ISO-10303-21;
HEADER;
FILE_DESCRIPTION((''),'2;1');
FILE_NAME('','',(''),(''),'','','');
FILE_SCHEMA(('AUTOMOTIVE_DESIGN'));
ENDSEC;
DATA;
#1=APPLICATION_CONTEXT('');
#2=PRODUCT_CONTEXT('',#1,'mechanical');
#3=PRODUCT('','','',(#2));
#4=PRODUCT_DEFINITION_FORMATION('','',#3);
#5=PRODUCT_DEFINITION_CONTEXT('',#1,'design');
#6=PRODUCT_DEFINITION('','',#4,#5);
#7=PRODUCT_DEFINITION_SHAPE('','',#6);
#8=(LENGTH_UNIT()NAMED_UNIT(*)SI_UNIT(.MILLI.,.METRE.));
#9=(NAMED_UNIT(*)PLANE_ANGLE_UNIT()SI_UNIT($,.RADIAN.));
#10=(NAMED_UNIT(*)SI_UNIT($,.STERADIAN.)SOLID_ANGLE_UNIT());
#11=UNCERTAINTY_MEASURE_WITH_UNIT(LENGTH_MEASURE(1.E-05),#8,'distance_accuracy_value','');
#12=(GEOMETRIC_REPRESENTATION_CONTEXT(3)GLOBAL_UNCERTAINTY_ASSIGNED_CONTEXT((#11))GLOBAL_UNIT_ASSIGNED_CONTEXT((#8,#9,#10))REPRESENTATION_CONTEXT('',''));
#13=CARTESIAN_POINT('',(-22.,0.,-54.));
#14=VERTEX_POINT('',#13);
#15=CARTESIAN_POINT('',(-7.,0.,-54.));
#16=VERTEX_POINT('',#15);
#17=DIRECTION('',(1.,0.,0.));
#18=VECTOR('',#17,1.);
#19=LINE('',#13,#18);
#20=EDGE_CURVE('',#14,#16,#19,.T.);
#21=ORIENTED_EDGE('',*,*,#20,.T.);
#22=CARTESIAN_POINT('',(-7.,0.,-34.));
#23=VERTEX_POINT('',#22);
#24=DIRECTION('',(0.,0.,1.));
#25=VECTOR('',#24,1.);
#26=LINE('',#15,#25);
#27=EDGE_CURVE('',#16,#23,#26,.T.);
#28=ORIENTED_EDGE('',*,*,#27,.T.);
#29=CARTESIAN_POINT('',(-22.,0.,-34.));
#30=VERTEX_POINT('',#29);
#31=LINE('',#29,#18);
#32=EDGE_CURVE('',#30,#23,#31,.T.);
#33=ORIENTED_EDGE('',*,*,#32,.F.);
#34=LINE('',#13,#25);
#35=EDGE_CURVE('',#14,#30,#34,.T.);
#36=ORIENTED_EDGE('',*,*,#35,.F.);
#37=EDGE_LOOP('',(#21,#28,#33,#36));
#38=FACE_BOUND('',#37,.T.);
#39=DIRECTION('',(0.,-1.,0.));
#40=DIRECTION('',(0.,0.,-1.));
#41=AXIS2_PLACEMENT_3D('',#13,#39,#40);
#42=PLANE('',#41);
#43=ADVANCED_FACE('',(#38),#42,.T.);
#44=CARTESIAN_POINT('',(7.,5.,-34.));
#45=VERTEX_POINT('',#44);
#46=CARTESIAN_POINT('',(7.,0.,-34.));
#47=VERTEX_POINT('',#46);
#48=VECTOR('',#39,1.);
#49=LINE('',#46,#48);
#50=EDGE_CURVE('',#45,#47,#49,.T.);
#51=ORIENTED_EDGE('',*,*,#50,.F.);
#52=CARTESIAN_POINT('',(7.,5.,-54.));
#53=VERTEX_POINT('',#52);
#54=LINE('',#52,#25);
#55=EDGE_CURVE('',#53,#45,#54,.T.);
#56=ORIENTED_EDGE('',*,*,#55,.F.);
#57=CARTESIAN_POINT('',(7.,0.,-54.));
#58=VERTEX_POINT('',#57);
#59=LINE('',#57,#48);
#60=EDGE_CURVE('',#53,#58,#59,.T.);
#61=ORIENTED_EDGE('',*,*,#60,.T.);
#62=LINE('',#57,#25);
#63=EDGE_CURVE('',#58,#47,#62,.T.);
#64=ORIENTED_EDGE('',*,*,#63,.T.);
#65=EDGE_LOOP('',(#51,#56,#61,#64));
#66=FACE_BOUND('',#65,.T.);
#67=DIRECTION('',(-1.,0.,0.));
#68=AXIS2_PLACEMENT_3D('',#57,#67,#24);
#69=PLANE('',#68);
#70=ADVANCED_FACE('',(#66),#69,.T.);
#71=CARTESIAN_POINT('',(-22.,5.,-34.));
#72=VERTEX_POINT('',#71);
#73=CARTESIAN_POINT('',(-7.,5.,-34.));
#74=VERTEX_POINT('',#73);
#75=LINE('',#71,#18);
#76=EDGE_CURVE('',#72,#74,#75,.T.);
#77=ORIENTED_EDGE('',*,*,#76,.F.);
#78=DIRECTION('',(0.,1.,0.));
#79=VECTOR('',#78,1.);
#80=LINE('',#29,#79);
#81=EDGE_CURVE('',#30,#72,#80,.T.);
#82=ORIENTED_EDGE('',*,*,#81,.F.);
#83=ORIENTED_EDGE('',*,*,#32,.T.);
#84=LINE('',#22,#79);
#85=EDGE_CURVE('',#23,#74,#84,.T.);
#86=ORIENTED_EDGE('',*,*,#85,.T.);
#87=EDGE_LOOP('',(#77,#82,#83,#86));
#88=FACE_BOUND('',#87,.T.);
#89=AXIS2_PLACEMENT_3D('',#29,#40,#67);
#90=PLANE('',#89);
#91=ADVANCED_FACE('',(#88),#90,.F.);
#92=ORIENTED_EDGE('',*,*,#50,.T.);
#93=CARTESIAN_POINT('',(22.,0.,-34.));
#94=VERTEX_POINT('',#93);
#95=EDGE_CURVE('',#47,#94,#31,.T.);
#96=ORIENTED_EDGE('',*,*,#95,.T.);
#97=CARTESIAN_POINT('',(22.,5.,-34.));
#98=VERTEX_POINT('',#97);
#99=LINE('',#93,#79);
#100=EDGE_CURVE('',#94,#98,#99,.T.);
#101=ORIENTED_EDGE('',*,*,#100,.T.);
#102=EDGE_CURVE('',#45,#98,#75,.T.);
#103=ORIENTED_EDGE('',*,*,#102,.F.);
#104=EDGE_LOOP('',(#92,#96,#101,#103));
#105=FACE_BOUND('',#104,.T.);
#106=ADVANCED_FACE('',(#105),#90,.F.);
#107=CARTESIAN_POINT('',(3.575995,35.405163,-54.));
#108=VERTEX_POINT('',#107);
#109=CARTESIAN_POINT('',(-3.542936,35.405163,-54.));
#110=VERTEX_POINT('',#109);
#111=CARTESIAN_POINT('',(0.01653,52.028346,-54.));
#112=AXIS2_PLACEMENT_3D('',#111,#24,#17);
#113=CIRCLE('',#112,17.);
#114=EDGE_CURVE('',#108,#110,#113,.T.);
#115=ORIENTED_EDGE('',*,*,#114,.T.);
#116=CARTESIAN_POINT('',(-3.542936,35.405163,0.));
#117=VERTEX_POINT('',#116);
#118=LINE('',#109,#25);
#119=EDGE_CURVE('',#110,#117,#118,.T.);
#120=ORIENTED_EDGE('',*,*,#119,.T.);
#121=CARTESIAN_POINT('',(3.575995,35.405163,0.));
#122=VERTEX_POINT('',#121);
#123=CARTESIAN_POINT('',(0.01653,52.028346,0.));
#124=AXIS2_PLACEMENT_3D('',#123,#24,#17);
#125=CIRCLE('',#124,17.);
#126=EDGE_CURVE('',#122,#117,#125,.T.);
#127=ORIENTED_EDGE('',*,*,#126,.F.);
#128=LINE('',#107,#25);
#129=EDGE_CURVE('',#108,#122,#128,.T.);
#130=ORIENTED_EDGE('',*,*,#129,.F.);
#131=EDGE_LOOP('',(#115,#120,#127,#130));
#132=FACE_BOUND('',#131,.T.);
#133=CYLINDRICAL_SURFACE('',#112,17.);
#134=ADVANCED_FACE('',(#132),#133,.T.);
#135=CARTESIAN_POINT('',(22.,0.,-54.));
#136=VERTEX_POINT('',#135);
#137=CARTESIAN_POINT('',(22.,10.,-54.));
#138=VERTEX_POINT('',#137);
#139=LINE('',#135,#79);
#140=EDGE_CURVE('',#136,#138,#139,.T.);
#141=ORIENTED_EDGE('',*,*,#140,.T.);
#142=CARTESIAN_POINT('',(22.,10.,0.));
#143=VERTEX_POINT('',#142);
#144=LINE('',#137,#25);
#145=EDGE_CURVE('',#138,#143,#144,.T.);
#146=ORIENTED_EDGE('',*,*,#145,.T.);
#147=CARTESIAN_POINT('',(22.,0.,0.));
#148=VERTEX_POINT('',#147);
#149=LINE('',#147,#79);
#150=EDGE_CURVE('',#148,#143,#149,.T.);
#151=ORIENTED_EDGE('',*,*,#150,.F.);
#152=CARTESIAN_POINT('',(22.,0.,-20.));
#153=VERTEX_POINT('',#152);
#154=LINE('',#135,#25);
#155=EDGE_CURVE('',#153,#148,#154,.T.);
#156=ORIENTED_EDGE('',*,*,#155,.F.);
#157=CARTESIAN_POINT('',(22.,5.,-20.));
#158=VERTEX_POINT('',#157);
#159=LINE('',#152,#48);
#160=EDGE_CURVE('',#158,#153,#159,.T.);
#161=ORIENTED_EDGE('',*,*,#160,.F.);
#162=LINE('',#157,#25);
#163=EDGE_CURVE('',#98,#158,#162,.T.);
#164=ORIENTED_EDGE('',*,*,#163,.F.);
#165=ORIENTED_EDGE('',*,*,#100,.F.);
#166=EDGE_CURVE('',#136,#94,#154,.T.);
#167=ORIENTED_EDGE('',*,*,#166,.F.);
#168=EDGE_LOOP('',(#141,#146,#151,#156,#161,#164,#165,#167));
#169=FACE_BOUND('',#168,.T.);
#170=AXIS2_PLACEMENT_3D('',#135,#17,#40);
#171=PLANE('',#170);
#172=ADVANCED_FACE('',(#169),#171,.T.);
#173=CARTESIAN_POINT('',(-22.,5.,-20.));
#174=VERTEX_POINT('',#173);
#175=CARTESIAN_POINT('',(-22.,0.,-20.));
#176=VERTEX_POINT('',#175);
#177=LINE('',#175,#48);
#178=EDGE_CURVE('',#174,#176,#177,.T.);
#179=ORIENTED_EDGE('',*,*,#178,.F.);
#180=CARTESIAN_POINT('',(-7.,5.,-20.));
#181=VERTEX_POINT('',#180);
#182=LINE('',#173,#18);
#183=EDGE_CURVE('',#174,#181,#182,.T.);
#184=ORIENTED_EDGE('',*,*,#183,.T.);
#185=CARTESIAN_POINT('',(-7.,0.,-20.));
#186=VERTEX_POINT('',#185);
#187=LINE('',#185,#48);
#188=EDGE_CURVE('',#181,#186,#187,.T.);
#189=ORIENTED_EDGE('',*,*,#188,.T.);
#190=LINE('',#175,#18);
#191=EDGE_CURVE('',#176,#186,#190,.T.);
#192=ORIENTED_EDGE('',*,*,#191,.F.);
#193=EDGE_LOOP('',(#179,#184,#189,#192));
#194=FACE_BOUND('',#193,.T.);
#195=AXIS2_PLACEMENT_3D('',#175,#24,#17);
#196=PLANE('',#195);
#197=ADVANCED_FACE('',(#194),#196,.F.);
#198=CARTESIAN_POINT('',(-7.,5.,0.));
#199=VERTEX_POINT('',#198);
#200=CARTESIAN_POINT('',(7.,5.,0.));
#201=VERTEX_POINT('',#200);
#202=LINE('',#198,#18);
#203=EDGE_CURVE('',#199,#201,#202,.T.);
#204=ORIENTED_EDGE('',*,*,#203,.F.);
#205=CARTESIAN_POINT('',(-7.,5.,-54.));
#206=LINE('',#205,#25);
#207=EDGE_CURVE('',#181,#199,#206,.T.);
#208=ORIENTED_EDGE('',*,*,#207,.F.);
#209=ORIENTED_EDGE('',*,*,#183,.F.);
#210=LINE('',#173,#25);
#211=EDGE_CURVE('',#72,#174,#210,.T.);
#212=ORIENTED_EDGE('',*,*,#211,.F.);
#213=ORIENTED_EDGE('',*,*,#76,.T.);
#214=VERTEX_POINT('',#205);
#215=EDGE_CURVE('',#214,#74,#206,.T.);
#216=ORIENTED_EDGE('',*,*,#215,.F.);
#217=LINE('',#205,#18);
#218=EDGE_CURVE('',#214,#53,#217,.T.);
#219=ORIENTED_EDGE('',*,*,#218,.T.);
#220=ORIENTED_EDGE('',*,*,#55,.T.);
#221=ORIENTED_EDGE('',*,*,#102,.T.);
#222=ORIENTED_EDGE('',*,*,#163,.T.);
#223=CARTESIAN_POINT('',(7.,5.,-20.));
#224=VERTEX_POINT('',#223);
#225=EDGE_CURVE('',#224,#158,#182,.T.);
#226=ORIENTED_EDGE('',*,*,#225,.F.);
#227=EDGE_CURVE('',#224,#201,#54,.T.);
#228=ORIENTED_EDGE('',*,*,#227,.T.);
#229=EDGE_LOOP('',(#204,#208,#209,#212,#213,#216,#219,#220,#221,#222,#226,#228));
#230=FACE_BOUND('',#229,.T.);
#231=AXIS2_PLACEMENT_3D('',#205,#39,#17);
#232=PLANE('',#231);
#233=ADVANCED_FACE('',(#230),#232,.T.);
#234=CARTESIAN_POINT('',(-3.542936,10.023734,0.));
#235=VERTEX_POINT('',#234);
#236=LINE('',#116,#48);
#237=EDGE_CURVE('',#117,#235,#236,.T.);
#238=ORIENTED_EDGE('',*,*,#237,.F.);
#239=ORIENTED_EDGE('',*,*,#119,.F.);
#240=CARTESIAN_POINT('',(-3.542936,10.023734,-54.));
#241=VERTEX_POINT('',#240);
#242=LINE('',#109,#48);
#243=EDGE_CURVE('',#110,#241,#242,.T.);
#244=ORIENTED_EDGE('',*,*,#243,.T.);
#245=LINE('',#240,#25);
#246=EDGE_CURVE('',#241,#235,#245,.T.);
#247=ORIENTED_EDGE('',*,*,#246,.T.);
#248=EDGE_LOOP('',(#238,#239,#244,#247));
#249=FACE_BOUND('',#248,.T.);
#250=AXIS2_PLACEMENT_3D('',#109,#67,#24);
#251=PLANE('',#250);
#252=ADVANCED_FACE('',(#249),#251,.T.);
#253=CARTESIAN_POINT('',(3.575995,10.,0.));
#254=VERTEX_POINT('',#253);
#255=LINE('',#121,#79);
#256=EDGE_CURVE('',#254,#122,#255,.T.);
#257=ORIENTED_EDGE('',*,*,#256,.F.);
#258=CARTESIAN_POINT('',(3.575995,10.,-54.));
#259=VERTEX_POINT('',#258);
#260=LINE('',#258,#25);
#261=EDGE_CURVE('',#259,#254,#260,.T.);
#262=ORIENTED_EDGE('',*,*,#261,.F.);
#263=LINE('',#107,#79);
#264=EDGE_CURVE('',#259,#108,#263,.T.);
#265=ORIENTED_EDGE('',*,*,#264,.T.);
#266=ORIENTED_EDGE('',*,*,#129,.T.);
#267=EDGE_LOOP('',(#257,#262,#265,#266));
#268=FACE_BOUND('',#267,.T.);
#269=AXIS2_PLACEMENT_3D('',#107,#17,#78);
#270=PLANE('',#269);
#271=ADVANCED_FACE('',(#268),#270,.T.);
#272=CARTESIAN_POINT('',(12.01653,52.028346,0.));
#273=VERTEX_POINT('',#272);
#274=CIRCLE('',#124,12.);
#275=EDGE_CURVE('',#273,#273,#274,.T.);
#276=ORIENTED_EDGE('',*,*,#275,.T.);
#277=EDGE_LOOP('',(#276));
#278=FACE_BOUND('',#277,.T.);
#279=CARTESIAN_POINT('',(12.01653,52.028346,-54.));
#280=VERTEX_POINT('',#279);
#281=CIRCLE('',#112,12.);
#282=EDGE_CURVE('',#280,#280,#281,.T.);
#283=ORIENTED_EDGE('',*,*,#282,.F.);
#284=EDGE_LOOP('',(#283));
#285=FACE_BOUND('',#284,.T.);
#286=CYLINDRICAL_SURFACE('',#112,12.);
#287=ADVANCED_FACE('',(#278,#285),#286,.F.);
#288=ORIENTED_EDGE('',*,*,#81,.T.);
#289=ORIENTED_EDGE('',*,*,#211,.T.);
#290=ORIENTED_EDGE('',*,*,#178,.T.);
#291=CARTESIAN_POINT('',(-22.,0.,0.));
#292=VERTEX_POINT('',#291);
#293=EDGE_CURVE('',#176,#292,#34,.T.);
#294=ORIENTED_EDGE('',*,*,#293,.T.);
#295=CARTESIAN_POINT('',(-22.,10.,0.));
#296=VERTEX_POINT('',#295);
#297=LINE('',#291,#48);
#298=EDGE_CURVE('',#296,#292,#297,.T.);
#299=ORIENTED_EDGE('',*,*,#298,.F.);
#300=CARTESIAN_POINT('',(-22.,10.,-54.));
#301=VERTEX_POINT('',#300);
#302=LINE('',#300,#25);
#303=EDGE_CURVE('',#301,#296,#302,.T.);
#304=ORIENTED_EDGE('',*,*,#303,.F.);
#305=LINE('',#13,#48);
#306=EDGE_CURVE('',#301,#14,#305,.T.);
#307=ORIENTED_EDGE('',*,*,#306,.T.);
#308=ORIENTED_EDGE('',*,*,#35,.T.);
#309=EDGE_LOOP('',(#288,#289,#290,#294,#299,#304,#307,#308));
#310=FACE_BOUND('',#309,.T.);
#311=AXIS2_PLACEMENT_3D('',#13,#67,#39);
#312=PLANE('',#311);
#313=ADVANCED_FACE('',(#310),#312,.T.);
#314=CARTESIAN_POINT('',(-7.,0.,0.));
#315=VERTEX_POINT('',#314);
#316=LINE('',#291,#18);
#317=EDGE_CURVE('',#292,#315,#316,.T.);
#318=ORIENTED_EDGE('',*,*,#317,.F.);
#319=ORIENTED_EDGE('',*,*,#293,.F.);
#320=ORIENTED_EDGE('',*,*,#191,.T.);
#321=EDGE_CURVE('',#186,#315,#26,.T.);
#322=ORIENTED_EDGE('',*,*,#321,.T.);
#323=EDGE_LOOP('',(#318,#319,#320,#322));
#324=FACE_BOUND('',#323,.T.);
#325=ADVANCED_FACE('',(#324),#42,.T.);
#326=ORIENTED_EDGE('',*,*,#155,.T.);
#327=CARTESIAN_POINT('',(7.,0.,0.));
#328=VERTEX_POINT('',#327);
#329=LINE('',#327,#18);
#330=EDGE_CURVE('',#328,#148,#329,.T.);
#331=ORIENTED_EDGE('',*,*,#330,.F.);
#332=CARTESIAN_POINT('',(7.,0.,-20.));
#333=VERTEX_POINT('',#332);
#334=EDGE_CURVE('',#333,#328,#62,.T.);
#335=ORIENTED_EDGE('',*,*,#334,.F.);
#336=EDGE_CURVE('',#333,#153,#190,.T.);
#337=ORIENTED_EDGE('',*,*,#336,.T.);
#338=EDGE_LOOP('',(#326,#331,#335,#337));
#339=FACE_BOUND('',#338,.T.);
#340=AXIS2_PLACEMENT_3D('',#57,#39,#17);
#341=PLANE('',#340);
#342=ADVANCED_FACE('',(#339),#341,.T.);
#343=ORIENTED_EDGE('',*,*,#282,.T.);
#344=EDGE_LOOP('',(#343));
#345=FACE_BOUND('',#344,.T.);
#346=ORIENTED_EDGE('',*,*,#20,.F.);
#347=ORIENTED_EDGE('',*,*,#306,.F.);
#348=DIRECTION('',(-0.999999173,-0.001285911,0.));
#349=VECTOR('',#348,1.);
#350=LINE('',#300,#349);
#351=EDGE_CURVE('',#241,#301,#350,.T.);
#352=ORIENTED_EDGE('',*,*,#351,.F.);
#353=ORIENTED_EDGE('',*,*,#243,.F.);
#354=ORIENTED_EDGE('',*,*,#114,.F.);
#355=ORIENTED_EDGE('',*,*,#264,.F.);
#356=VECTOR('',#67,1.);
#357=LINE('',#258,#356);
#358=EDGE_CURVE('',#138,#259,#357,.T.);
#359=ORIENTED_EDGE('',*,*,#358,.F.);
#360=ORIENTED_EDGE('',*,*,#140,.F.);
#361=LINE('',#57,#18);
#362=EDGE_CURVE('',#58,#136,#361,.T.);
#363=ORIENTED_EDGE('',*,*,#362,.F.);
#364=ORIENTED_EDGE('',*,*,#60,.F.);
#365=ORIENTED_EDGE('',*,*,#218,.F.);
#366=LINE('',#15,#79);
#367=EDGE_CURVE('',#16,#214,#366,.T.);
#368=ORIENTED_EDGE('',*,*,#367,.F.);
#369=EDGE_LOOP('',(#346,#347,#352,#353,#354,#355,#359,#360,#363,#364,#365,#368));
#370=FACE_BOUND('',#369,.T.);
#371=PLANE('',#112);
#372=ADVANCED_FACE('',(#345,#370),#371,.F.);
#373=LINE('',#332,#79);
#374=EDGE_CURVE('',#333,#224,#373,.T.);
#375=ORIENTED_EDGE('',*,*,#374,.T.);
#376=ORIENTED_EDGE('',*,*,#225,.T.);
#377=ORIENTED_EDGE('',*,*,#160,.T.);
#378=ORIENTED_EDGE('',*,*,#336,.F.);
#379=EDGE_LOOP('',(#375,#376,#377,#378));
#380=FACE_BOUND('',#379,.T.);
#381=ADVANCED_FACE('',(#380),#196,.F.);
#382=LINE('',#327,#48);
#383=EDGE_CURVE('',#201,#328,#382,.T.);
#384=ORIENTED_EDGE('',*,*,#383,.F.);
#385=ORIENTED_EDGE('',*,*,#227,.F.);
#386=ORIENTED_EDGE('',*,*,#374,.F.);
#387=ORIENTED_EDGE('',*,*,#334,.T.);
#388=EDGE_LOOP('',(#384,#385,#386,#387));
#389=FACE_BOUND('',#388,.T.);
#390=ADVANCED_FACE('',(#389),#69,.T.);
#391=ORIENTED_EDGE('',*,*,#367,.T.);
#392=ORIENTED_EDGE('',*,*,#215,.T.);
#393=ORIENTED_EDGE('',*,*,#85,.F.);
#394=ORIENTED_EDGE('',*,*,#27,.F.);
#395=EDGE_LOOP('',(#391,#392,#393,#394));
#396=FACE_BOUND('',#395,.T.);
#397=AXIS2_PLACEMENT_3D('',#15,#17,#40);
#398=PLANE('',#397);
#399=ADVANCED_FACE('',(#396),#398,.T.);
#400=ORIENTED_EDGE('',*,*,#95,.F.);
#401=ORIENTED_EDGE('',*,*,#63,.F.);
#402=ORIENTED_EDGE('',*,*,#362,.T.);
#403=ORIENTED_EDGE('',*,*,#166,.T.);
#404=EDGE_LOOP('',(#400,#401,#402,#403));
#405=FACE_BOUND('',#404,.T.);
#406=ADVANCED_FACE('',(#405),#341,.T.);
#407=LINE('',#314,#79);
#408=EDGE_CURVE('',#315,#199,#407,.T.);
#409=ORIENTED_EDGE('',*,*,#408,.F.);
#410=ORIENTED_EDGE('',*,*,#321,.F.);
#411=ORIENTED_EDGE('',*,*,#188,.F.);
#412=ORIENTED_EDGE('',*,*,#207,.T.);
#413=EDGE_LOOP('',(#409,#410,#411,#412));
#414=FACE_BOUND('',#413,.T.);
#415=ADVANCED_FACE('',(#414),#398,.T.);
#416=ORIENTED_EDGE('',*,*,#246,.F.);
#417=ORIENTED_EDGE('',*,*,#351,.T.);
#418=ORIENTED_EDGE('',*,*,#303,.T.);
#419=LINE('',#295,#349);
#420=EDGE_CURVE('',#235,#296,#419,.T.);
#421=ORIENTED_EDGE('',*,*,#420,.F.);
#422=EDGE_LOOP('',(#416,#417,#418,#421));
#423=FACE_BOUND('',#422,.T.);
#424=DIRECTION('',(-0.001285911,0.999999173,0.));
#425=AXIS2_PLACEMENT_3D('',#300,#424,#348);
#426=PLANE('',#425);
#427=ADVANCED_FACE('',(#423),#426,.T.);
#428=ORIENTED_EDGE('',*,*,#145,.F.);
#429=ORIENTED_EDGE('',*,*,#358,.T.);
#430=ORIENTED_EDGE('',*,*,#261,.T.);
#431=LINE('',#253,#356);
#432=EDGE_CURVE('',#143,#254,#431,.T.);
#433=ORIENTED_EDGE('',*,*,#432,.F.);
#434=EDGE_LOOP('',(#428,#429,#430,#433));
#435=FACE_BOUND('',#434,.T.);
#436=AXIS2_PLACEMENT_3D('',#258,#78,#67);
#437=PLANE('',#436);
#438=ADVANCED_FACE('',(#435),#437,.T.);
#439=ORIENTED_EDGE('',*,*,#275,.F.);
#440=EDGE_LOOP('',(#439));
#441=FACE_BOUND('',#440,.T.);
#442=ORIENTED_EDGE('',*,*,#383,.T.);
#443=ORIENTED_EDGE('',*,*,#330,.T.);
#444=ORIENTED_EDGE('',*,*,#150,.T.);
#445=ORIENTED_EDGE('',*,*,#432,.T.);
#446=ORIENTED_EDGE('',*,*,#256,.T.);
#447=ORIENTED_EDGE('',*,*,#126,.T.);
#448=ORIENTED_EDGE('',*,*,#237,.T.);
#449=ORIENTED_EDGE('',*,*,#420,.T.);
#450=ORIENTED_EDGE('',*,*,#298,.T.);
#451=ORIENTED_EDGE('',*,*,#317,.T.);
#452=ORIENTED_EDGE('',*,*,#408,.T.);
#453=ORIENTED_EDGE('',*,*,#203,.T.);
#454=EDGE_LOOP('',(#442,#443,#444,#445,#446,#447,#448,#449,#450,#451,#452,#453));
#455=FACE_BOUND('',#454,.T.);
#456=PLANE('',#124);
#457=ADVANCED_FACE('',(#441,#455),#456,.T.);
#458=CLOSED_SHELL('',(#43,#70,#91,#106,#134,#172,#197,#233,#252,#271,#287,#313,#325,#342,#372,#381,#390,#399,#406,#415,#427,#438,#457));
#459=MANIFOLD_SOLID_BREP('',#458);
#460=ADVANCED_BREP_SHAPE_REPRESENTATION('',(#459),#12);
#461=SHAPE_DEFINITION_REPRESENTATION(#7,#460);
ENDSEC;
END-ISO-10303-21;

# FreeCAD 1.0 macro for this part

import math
import FreeCAD as App
import Part
import Sketcher
from FreeCAD import Vector
Q = App.Units.Quantity

doc = App.newDocument("Part")
body = doc.addObject("PartDesign::Body", "Body")

sketch1 = body.newObject("Sketcher::SketchObject", "Sketch")
sketch1.AttachmentSupport = (doc.getObject("XY_Plane"), [""])
sketch1.MapMode = "FlatFace"
sketch1.addGeometry([
    Part.LineSegment(Vector(-22, 0, 0), Vector(-7, 0, 0)),
    Part.LineSegment(Vector(-7, 0, 0), Vector(-7, 5, 0)),
    Part.LineSegment(Vector(-7, 5, 0), Vector(7, 5, 0)),
    Part.LineSegment(Vector(7, 5, 0), Vector(7, 0, 0)),
    Part.LineSegment(Vector(7, 0, 0), Vector(22, 0, 0)),
    Part.LineSegment(Vector(22, 0, 0), Vector(22, 10, 0)),
    Part.LineSegment(Vector(22, 10, 0), Vector(3.575995, 10, 0)),
    Part.LineSegment(Vector(3.575995, 10, 0), Vector(3.575995, 35.405163, 0)),
    Part.ArcOfCircle(Part.Circle(Vector(0.01653, 52.028346, 0), Vector(0, 0, 1), 17), math.radians(-77.913959), math.radians(257.913959)),
    Part.LineSegment(Vector(-3.542936, 35.405163, 0), Vector(-3.542936, 10.023734, 0)),
    Part.LineSegment(Vector(-3.542936, 10.023734, 0), Vector(-22, 10, 0)),
    Part.LineSegment(Vector(-22, 10, 0), Vector(-22, 0, 0)),
    Part.Circle(Vector(0.01653, 52.028346, 0), Vector(0, 0, 1), 12),
], False)
sketch1.addConstraint([
    Sketcher.Constraint("Coincident", 0, 2, 1, 1),
    Sketcher.Constraint("Coincident", 1, 2, 2, 1),
    Sketcher.Constraint("Coincident", 2, 2, 3, 1),
    Sketcher.Constraint("Coincident", 3, 2, 4, 1),
    Sketcher.Constraint("Coincident", 4, 2, 5, 1),
    Sketcher.Constraint("Coincident", 5, 2, 6, 1),
    Sketcher.Constraint("Coincident", 6, 2, 7, 1),
    Sketcher.Constraint("Coincident", 7, 2, 8, 1),
    Sketcher.Constraint("Coincident", 8, 2, 9, 1),
    Sketcher.Constraint("Coincident", 9, 2, 10, 1),
    Sketcher.Constraint("Coincident", 10, 2, 11, 1),
    Sketcher.Constraint("Coincident", 11, 2, 0, 1),
    Sketcher.Constraint("Horizontal", 0),
    Sketcher.Constraint("Vertical", 1),
    Sketcher.Constraint("Horizontal", 2),
    Sketcher.Constraint("Vertical", 3),
    Sketcher.Constraint("Horizontal", 4),
    Sketcher.Constraint("Vertical", 5),
    Sketcher.Constraint("Horizontal", 6),
    Sketcher.Constraint("Vertical", 7),
    Sketcher.Constraint("Vertical", 9),
    Sketcher.Constraint("Vertical", 11),
    Sketcher.Constraint("Coincident", 12, 3, 8, 3),
    Sketcher.Constraint("Symmetric", 0, 2, 3, 2, -1, 1),
    Sketcher.Constraint("Symmetric", 5, 2, 10, 2, -2),
    Sketcher.Constraint("PointOnObject", 0, 2, -1),
    Sketcher.Constraint("Horizontal", 7, 2, 8, 2),
    Sketcher.Constraint("Diameter", 12, Q("24 mm")),
    Sketcher.Constraint("Radius", 8, Q("17 mm")),
    Sketcher.Constraint("DistanceX", 0, 1, 0, 2, Q("15 mm")),
    Sketcher.Constraint("DistanceX", 2, 1, 2, 2, Q("14 mm")),
    Sketcher.Constraint("DistanceY", 1, 1, 1, 2, Q("5 mm")),
    Sketcher.Constraint("DistanceY", 5, 1, 5, 2, Q("10 mm")),
    Sketcher.Constraint("DistanceY", 9, 2, 9, 1, Q("25.381429 mm")),
    Sketcher.Constraint("Distance", 10, Q("18.457079 mm")),
    Sketcher.Constraint("DistanceX", 6, 2, 6, 1, Q("18.424005 mm")),
    Sketcher.Constraint("DistanceY", 7, 1, 7, 2, Q("25.405163 mm")),
])
pad1 = body.newObject("PartDesign::Pad", "Pad")
pad1.Profile = sketch1
pad1.Length = 54
pad1.Reversed = True

sketch2 = body.newObject("Sketcher::SketchObject", "Sketch001")
sketch2.AttachmentSupport = (doc.getObject("YZ_Plane"), [""])
sketch2.MapMode = "FlatFace"
sketch2.AttachmentOffset = App.Placement(Vector(0, 0, 22), App.Rotation())
sketch2.addGeometry([
    Part.LineSegment(Vector(5, -20, 0), Vector(0, -20, 0)),
    Part.LineSegment(Vector(0, -20, 0), Vector(0, -34, 0)),
    Part.LineSegment(Vector(0, -34, 0), Vector(5, -34, 0)),
    Part.LineSegment(Vector(5, -34, 0), Vector(5, -20, 0)),
], False)
sketch2.addConstraint([
    Sketcher.Constraint("Coincident", 0, 2, 1, 1),
    Sketcher.Constraint("Coincident", 1, 2, 2, 1),
    Sketcher.Constraint("Coincident", 2, 2, 3, 1),
    Sketcher.Constraint("Coincident", 3, 2, 0, 1),
    Sketcher.Constraint("Horizontal", 0),
    Sketcher.Constraint("Vertical", 1),
    Sketcher.Constraint("Horizontal", 2),
    Sketcher.Constraint("Vertical", 3),
    Sketcher.Constraint("PointOnObject", 0, 2, -2),
    Sketcher.Constraint("DistanceX", 0, 2, 0, 1, Q("5 mm")),
    Sketcher.Constraint("DistanceY", 1, 2, 1, 1, Q("14 mm")),
    Sketcher.Constraint("DistanceY", 0, 2, -1, 1, Q("20 mm")),
])
pocket1 = body.newObject("PartDesign::Pocket", "Pocket")
pocket1.Profile = sketch2
pocket1.Length = 44

doc.recompute()
